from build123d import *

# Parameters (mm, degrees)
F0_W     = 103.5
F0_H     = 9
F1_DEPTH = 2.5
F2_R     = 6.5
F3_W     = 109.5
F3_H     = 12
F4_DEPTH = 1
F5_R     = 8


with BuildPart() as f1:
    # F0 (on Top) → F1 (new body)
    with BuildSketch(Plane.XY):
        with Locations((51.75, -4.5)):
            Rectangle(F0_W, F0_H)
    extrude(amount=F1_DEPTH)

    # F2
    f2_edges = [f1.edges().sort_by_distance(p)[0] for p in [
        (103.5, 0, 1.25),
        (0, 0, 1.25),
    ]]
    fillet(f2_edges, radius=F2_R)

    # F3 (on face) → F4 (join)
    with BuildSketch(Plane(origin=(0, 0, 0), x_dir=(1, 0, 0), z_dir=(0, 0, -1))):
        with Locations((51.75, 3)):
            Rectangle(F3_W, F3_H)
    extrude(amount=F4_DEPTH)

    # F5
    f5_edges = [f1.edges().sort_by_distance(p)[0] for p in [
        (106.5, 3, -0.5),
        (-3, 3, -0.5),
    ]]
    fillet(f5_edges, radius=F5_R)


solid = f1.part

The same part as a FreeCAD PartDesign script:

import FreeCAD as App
import Part
import Sketcher

V = App.Vector


def edges_at(feature, points):
    """Names of the edges that pass closest to the given points."""
    edges = feature.Shape.Edges
    near = lambda p: min(range(len(edges)), key=lambda i: edges[i].distToShape(Part.Vertex(*p))[0])
    return sorted({f"Edge{near(p) + 1}" for p in points})


def add_polygon(sketch, points):
    """Adds a closed chain of lines whose ends are joined by coincident constraints."""
    first, n = sketch.GeometryCount, len(points)
    for a, b in zip(points, points[1:] + points[:1]):
        sketch.addGeometry(Part.LineSegment(App.Vector(*a, 0), App.Vector(*b, 0)), False)
    for i in range(n):
        sketch.addConstraint(Sketcher.Constraint("Coincident", first + i, 2, first + (i + 1) % n, 1))

doc = App.newDocument("Part")
body = doc.addObject("PartDesign::Body", "Body")

sketch1 = body.newObject("Sketcher::SketchObject", "Sketch")
sketch1.AttachmentSupport = (doc.getObject("XY_Plane"), [""])
sketch1.MapMode = "FlatFace"
add_polygon(sketch1, [(0, 0), (0, -9), (104, -9), (104, 0)])
sketch1.addConstraint(Sketcher.Constraint("Vertical", 0))
sketch1.addConstraint(Sketcher.Constraint("Horizontal", 1))
sketch1.addConstraint(Sketcher.Constraint("Vertical", 2))
sketch1.addConstraint(Sketcher.Constraint("Horizontal", 3))
sketch1.addConstraint(Sketcher.Constraint("Coincident", 3, 2, -1, 1))
sketch1.addConstraint(Sketcher.Constraint("DistanceY", 0, 2, 0, 1, 9.0))
sketch1.addConstraint(Sketcher.Constraint("DistanceX", 1, 1, 1, 2, 103.5))
pad1 = body.newObject("PartDesign::Pad", "Pad")
pad1.Profile = sketch1
pad1.Length = 2.5
doc.recompute()

fillet = body.newObject("PartDesign::Fillet", "Fillet")
fillet.Base = (pad1, edges_at(pad1, [(103.5, 0, 1.25), (0, 0, 1.25)]))
fillet.Radius = 6.5

sketch2 = body.newObject("Sketcher::SketchObject", "Sketch001")
sketch2.AttachmentSupport = (doc.getObject("XY_Plane"), [""])
sketch2.MapMode = "FlatFace"
add_polygon(sketch2, [(-3, -9), (-3, 3), (106, 3), (106, -9)])
sketch2.addConstraint(Sketcher.Constraint("Vertical", 0))
sketch2.addConstraint(Sketcher.Constraint("Horizontal", 1))
sketch2.addConstraint(Sketcher.Constraint("Vertical", 2))
sketch2.addConstraint(Sketcher.Constraint("Horizontal", 3))
sketch2.addConstraint(Sketcher.Constraint("DistanceY", 0, 1, 0, 2, 12.0))
sketch2.addConstraint(Sketcher.Constraint("DistanceX", 1, 1, 1, 2, 109.5))
sketch2.addConstraint(Sketcher.Constraint("DistanceX", 0, 2, -1, 1, 3.0))
sketch2.addConstraint(Sketcher.Constraint("DistanceY", -1, 1, 0, 2, 3.0))
pad2 = body.newObject("PartDesign::Pad", "Pad001")
pad2.Profile = sketch2
pad2.Length = 1
pad2.Reversed = True
doc.recompute()

fillet2 = body.newObject("PartDesign::Fillet", "Fillet001")
fillet2.Base = (pad2, edges_at(pad2, [(106.5, 3, -0.5), (-3, 3, -0.5)]))
fillet2.Radius = 8

doc.recompute()
